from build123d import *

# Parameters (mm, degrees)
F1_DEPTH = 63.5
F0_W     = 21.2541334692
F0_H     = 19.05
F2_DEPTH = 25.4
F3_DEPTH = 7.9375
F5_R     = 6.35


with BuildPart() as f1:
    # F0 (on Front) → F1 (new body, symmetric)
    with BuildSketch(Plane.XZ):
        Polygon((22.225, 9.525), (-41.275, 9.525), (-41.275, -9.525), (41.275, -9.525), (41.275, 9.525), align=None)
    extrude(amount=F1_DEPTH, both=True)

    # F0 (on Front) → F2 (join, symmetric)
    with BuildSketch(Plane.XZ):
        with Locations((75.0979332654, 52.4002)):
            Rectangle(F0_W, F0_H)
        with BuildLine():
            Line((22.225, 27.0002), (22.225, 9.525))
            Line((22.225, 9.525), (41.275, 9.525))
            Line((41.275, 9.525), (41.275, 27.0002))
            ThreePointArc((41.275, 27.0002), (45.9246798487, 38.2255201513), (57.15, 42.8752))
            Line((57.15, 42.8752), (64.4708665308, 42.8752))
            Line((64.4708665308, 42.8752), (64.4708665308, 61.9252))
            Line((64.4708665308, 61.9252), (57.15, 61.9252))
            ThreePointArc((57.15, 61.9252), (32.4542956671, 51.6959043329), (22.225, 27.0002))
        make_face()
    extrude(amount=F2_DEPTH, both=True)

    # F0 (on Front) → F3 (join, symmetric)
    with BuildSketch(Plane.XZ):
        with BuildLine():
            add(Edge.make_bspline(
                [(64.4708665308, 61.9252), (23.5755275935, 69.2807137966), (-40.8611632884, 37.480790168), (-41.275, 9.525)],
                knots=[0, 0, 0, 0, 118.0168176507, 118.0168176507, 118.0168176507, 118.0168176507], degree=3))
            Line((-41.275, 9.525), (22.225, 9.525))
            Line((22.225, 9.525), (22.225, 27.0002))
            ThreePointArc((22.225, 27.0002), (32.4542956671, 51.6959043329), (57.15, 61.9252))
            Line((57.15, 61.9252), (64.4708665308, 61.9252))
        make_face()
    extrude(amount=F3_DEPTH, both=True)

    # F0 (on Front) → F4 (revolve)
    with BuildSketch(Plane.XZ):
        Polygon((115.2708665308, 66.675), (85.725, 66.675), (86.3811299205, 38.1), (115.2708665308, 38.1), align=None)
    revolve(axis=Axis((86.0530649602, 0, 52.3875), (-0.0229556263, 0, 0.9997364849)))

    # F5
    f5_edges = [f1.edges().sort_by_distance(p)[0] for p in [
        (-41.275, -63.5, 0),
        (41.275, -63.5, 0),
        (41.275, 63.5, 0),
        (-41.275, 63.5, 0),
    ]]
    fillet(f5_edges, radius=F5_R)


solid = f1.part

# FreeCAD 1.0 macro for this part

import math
import FreeCAD as App
import Part
import Sketcher
Q = App.Units.Quantity


def edges_at(feature, points):
    """Names of the edges that pass closest to the given points."""
    edges = feature.Shape.Edges
    near = lambda p: min(range(len(edges)), key=lambda i: edges[i].distToShape(Part.Vertex(*p))[0])
    return sorted({f"Edge{near(p) + 1}" for p in points})

doc = App.newDocument("Part")
params = doc.addObject("Spreadsheet::Sheet", "Params")
for row, (alias, value) in enumerate([
    ("sketch1_width", "3.25 in"),
    ("sketch1_height", "0.75 in"),
    ("pad1_length", "5 in"),
    ("sketch2_radius", "1.375 in"),
    ("sketch2_radius2", "0.625 in"),
    ("sketch2_height", "0.688 in"),
    ("pad2_length", "2 in"),
    ("sketch3_width", "2.5 in"),
    ("sketch3_radius", "1.375 in"),
    ("pad3_length", "0.625 in"),
    ("sketch4_height", "1.125 in"),
    ("revolution_angle", "360 deg"),
    ("fillet_radius", "0.25 in"),
], start=1):
    params.set(f"A{row}", alias)
    params.set(f"B{row}", "=" + value)
    params.setAlias(f"B{row}", alias)

body = doc.addObject("PartDesign::Body", "Body")

# Sketch on XZ plane
sketch1 = body.newObject("Sketcher::SketchObject", "Sketch")
sketch1.AttachmentSupport = (doc.getObject("XZ_Plane"), [""])
sketch1.MapMode = "FlatFace"
sketch1.addGeometry(Part.LineSegment(App.Vector(-41, 10, 0), App.Vector(-41, -10, 0)), False)
sketch1.addGeometry(Part.LineSegment(App.Vector(-41, -10, 0), App.Vector(41, -10, 0)), False)
sketch1.addGeometry(Part.LineSegment(App.Vector(41, -10, 0), App.Vector(41, 10, 0)), False)
sketch1.addGeometry(Part.LineSegment(App.Vector(41, 10, 0), App.Vector(-41, 10, 0)), False)
sketch1.addConstraint(Sketcher.Constraint("Coincident", 0, 2, 1, 1))
sketch1.addConstraint(Sketcher.Constraint("Coincident", 1, 2, 2, 1))
sketch1.addConstraint(Sketcher.Constraint("Coincident", 2, 2, 3, 1))
sketch1.addConstraint(Sketcher.Constraint("Coincident", 3, 2, 0, 1))
sketch1.addConstraint(Sketcher.Constraint("Vertical", 0))
sketch1.addConstraint(Sketcher.Constraint("Horizontal", 1))
sketch1.addConstraint(Sketcher.Constraint("Vertical", 2))
sketch1.addConstraint(Sketcher.Constraint("Horizontal", 3))
sketch1.addConstraint(Sketcher.Constraint("Symmetric", 0, 2, 2, 2, -1, 1))
sketch1.addConstraint(Sketcher.Constraint("DistanceX", 1, 1, 1, 2, Q("3.25 in")))
sketch1.addConstraint(Sketcher.Constraint("DistanceY", 0, 2, 0, 1, Q("0.75 in")))
sketch1.setExpression("Constraints[9]", "Params.sketch1_width")
sketch1.setExpression("Constraints[10]", "Params.sketch1_height")
pad1 = body.newObject("PartDesign::Pad", "Pad")
pad1.Profile = sketch1
pad1.setExpression("Length", "Params.pad1_length")
pad1.Midplane = True

# Sketch on XZ plane
sketch2 = body.newObject("Sketcher::SketchObject", "Sketch001")
sketch2.AttachmentSupport = (doc.getObject("XZ_Plane"), [""])
sketch2.MapMode = "FlatFace"
sketch2.addGeometry(Part.LineSegment(App.Vector(86, 43, 0), App.Vector(86, 62, 0)), False)
sketch2.addGeometry(Part.LineSegment(App.Vector(86, 62, 0), App.Vector(57, 62, 0)), False)
sketch2.addGeometry(Part.ArcOfCircle(Part.Circle(App.Vector(57, 27, 0), App.Vector(0, 0, 1), 35), math.radians(90), math.radians(180)), False)
sketch2.addGeometry(Part.LineSegment(App.Vector(22, 27, 0), App.Vector(22, 10, 0)), False)
sketch2.addGeometry(Part.LineSegment(App.Vector(22, 10, 0), App.Vector(41, 10, 0)), False)
sketch2.addGeometry(Part.LineSegment(App.Vector(41, 10, 0), App.Vector(41, 27, 0)), False)
sketch2.addGeometry(Part.ArcOfCircle(Part.Circle(App.Vector(57, 27, 0), App.Vector(0, 0, 1), 16), math.radians(90), math.radians(180)), False)
sketch2.addGeometry(Part.LineSegment(App.Vector(57, 43, 0), App.Vector(86, 43, 0)), False)
sketch2.addConstraint(Sketcher.Constraint("Coincident", 0, 2, 1, 1))
sketch2.addConstraint(Sketcher.Constraint("Tangent", 1, 2, 2, 1))
sketch2.addConstraint(Sketcher.Constraint("Tangent", 2, 2, 3, 1))
sketch2.addConstraint(Sketcher.Constraint("Coincident", 3, 2, 4, 1))
sketch2.addConstraint(Sketcher.Constraint("Coincident", 4, 2, 5, 1))
sketch2.addConstraint(Sketcher.Constraint("Tangent", 5, 2, 6, 2))
sketch2.addConstraint(Sketcher.Constraint("Tangent", 6, 1, 7, 1))
sketch2.addConstraint(Sketcher.Constraint("Coincident", 7, 2, 0, 1))
sketch2.addConstraint(Sketcher.Constraint("Vertical", 0))
sketch2.addConstraint(Sketcher.Constraint("Horizontal", 1))
sketch2.addConstraint(Sketcher.Constraint("Vertical", 3))
sketch2.addConstraint(Sketcher.Constraint("Horizontal", 4))
sketch2.addConstraint(Sketcher.Constraint("Vertical", 5))
sketch2.addConstraint(Sketcher.Constraint("Horizontal", 7))
sketch2.addConstraint(Sketcher.Constraint("Coincident", 6, 3, 2, 3))
sketch2.addConstraint(Sketcher.Constraint("Radius", 2, Q("1.375 in")))
sketch2.addConstraint(Sketcher.Constraint("Radius", 6, Q("0.625 in")))
sketch2.addConstraint(Sketcher.Constraint("DistanceX", 2, 2, 0, 2, Q("2.5 in")))
sketch2.addConstraint(Sketcher.Constraint("DistanceY", 3, 2, 3, 1, Q("0.688 in")))
sketch2.addConstraint(Sketcher.Constraint("DistanceX", -1, 1, 2, 3, Q("2.25 in")))
sketch2.addConstraint(Sketcher.Constraint("DistanceY", -1, 1, 2, 3, Q("1.063 in")))
sketch2.setExpression("Constraints[15]", "Params.sketch2_radius")
sketch2.setExpression("Constraints[16]", "Params.sketch2_radius2")
sketch2.setExpression("Constraints[18]", "Params.sketch2_height")
pad2 = body.newObject("PartDesign::Pad", "Pad001")
pad2.Profile = sketch2
pad2.setExpression("Length", "Params.pad2_length")
pad2.Midplane = True

# Sketch on XZ plane
sketch3 = body.newObject("Sketcher::SketchObject", "Sketch002")
sketch3.AttachmentSupport = (doc.getObject("XZ_Plane"), [""])
sketch3.MapMode = "FlatFace"
sketch3.addGeometry(Part.BSplineCurve([App.Vector(64.470867, 61.9252, 0), App.Vector(23.575528, 69.280714, 0), App.Vector(-40.861163, 37.48079, 0), App.Vector(-41.275, 9.525, 0)], [4, 4], [0, 118.016817651], False, 3, [1, 1, 1, 1], False), False)
sketch3.addGeometry(Part.LineSegment(App.Vector(-41.275, 9.525, 0), App.Vector(22.225, 9.525, 0)), False)
sketch3.addGeometry(Part.LineSegment(App.Vector(22.225, 9.525, 0), App.Vector(22.225, 27.0002, 0)), False)
sketch3.addGeometry(Part.ArcOfCircle(Part.Circle(App.Vector(57.15, 27.0002, 0), App.Vector(0, 0, 1), 34.925), math.radians(90), math.radians(180)), False)
sketch3.addGeometry(Part.LineSegment(App.Vector(57.15, 61.9252, 0), App.Vector(64.470867, 61.9252, 0)), False)
sketch3.addConstraint(Sketcher.Constraint("Block", 0))
sketch3.addConstraint(Sketcher.Constraint("Coincident", 0, 2, 1, 1))
sketch3.addConstraint(Sketcher.Constraint("Coincident", 1, 2, 2, 1))
sketch3.addConstraint(Sketcher.Constraint("Tangent", 2, 2, 3, 2))
sketch3.addConstraint(Sketcher.Constraint("Tangent", 3, 1, 4, 1))
sketch3.addConstraint(Sketcher.Constraint("Coincident", 4, 2, 0, 1))
sketch3.addConstraint(Sketcher.Constraint("Horizontal", 1))
sketch3.addConstraint(Sketcher.Constraint("Vertical", 2))
sketch3.addConstraint(Sketcher.Constraint("Horizontal", 4))
sketch3.addConstraint(Sketcher.Constraint("DistanceX", 1, 1, 1, 2, Q("2.5 in")))
sketch3.addConstraint(Sketcher.Constraint("Radius", 3, Q("1.375 in")))
sketch3.setExpression("Constraints[9]", "Params.sketch3_width")
sketch3.setExpression("Constraints[10]", "Params.sketch3_radius")
pad3 = body.newObject("PartDesign::Pad", "Pad002")
pad3.Profile = sketch3
pad3.setExpression("Length", "Params.pad3_length")
pad3.Midplane = True

# Sketch on XZ plane
sketch4 = body.newObject("Sketcher::SketchObject", "Sketch003")
sketch4.AttachmentSupport = (doc.getObject("XZ_Plane"), [""])
sketch4.MapMode = "FlatFace"
sketch4.addGeometry(Part.LineSegment(App.Vector(115, 67, 0), App.Vector(86, 67, 0)), False)
sketch4.addGeometry(Part.LineSegment(App.Vector(86, 67, 0), App.Vector(86, 38, 0)), False)
sketch4.addGeometry(Part.LineSegment(App.Vector(86, 38, 0), App.Vector(115, 38, 0)), False)
sketch4.addGeometry(Part.LineSegment(App.Vector(115, 38, 0), App.Vector(115, 67, 0)), False)
sketch4.addGeometry(Part.LineSegment(App.Vector(86, 37, 0), App.Vector(86, 67, 0)), True)  # axis
sketch4.addConstraint(Sketcher.Constraint("Coincident", 0, 2, 1, 1))
sketch4.addConstraint(Sketcher.Constraint("Coincident", 1, 2, 2, 1))
sketch4.addConstraint(Sketcher.Constraint("Coincident", 2, 2, 3, 1))
sketch4.addConstraint(Sketcher.Constraint("Coincident", 3, 2, 0, 1))
sketch4.addConstraint(Sketcher.Constraint("Horizontal", 0))
sketch4.addConstraint(Sketcher.Constraint("Horizontal", 2))
sketch4.addConstraint(Sketcher.Constraint("Vertical", 3))
sketch4.addConstraint(Sketcher.Constraint("Coincident", 4, 2, 0, 2))
sketch4.addConstraint(Sketcher.Constraint("Parallel", 1, 4))
sketch4.addConstraint(Sketcher.Constraint("DistanceY", -1, 1, 1, 2, Q("1.5 in")))
sketch4.addConstraint(Sketcher.Constraint("DistanceY", 3, 1, 3, 2, Q("1.125 in")))
sketch4.addConstraint(Sketcher.Constraint("DistanceX", -1, 1, 0, 2, Q("3.375 in")))
sketch4.addConstraint(Sketcher.Constraint("Distance", 1, 28.582532))
sketch4.addConstraint(Sketcher.Constraint("DistanceX", 0, 2, 0, 1, 29.545867))
sketch4.addConstraint(Sketcher.Constraint("Distance", 4, 29.245714))
sketch4.setExpression("Constraints[10]", "Params.sketch4_height")
revolution = body.newObject("PartDesign::Revolution", "Revolution")
revolution.Profile = sketch4
revolution.ReferenceAxis = (sketch4, ["Axis0"])
revolution.setExpression("Angle", "Params.revolution_angle")
doc.recompute()

fillet = body.newObject("PartDesign::Fillet", "Fillet")
fillet.Base = (revolution, edges_at(revolution, [
    (-41.275, -63.5, 0),
    (41.275, -63.5, 0),
    (41.275, 63.5, 0),
    (-41.275, 63.5, 0),
]))
fillet.setExpression("Radius", "Params.fillet_radius")

doc.recompute()
